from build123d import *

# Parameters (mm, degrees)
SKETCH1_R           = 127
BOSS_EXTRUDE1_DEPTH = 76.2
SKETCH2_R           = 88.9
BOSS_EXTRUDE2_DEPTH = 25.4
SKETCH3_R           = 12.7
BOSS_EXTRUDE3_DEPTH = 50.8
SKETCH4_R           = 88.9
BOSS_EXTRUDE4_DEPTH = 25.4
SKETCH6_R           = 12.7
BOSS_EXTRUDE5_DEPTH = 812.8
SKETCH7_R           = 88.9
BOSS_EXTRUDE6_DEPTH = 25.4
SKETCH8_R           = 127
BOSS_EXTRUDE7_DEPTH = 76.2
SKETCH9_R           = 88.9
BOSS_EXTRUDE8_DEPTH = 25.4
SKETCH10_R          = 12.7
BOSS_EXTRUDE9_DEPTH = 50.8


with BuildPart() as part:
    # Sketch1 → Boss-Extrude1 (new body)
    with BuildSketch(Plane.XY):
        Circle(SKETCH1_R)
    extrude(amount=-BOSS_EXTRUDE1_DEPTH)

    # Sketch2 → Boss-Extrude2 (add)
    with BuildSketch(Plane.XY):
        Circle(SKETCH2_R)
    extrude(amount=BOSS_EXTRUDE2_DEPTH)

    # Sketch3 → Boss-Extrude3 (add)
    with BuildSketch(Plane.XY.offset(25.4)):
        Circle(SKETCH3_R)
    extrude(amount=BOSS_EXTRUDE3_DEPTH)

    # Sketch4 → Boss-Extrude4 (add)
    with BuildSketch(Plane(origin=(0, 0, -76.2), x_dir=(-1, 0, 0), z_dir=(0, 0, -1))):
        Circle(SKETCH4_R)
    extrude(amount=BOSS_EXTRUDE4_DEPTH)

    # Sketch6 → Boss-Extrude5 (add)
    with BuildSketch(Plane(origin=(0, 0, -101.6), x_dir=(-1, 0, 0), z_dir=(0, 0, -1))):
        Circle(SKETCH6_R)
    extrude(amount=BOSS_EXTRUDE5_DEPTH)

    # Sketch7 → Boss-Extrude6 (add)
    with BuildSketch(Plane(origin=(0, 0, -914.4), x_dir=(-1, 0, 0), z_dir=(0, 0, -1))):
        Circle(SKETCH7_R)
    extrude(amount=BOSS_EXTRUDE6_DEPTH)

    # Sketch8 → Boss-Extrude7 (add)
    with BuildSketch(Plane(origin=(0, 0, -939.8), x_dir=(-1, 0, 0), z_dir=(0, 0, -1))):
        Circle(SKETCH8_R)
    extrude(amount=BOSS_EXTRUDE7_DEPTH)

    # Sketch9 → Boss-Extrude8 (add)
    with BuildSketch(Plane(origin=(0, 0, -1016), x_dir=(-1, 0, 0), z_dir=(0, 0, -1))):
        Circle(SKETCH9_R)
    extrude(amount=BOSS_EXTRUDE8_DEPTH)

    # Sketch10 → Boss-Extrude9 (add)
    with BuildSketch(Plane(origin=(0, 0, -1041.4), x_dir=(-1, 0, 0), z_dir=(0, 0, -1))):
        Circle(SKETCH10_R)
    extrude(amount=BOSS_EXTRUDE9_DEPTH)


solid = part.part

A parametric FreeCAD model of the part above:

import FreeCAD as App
import Part
import Sketcher
Q = App.Units.Quantity

doc = App.newDocument("Part")
params = doc.addObject("Spreadsheet::Sheet", "Params")
for row, (alias, value) in enumerate([
    ("sketch1_diameter", "10 in"),
    ("pad1_length", "3 in"),
    ("sketch2_diameter", "7 in"),
    ("pad2_length", "1 in"),
    ("sketch3_diameter", "1 in"),
    ("pad3_length", "2 in"),
    ("sketch4_diameter", "7 in"),
    ("pad4_length", "1 in"),
    ("sketch5_diameter", "1 in"),
    ("pad5_length", "32 in"),
    ("sketch6_diameter", "7 in"),
    ("pad6_length", "1 in"),
    ("sketch7_diameter", "10 in"),
    ("pad7_length", "3 in"),
    ("sketch8_diameter", "7 in"),
    ("pad8_length", "1 in"),
    ("sketch9_diameter", "1 in"),
    ("pad9_length", "2 in"),
], start=1):
    params.set(f"A{row}", alias)
    params.set(f"B{row}", "=" + value)
    params.setAlias(f"B{row}", alias)

body = doc.addObject("PartDesign::Body", "Body")

# Sketch on XY plane
sketch1 = body.newObject("Sketcher::SketchObject", "Sketch")
sketch1.AttachmentSupport = (doc.getObject("XY_Plane"), [""])
sketch1.MapMode = "FlatFace"
sketch1.addGeometry(Part.Circle(App.Vector(0, 0, 0), App.Vector(0, 0, 1), 127), False)
sketch1.addConstraint([
    Sketcher.Constraint("Coincident", 0, 3, -1, 1),
    Sketcher.Constraint("Diameter", 0, Q("10 in")),
])
sketch1.setExpression("Constraints[1]", "Params.sketch1_diameter")
pad1 = body.newObject("PartDesign::Pad", "Pad")
pad1.Profile = sketch1
pad1.setExpression("Length", "Params.pad1_length")
pad1.Reversed = True

# Sketch on XY plane
sketch2 = body.newObject("Sketcher::SketchObject", "Sketch001")
sketch2.AttachmentSupport = (doc.getObject("XY_Plane"), [""])
sketch2.MapMode = "FlatFace"
sketch2.addGeometry(Part.Circle(App.Vector(0, 0, 0), App.Vector(0, 0, 1), 88.9), False)
sketch2.addConstraint([
    Sketcher.Constraint("Coincident", 0, 3, -1, 1),
    Sketcher.Constraint("Diameter", 0, Q("7 in")),
])
sketch2.setExpression("Constraints[1]", "Params.sketch2_diameter")
pad2 = body.newObject("PartDesign::Pad", "Pad001")
pad2.Profile = sketch2
pad2.setExpression("Length", "Params.pad2_length")

# Sketch on XY plane
sketch3 = body.newObject("Sketcher::SketchObject", "Sketch002")
sketch3.AttachmentSupport = (doc.getObject("XY_Plane"), [""])
sketch3.MapMode = "FlatFace"
sketch3.AttachmentOffset = App.Placement(App.Vector(0, 0, 1 * 25.4), App.Rotation())
sketch3.addGeometry(Part.Circle(App.Vector(0, 0, 0), App.Vector(0, 0, 1), 12.7), False)
sketch3.addConstraint([
    Sketcher.Constraint("Coincident", 0, 3, -1, 1),
    Sketcher.Constraint("Diameter", 0, Q("1 in")),
])
sketch3.setExpression("Constraints[1]", "Params.sketch3_diameter")
pad3 = body.newObject("PartDesign::Pad", "Pad002")
pad3.Profile = sketch3
pad3.setExpression("Length", "Params.pad3_length")

# Sketch on XY plane
sketch4 = body.newObject("Sketcher::SketchObject", "Sketch003")
sketch4.AttachmentSupport = (doc.getObject("XY_Plane"), [""])
sketch4.MapMode = "FlatFace"
sketch4.AttachmentOffset = App.Placement(App.Vector(0, 0, -3 * 25.4), App.Rotation())
sketch4.addGeometry(Part.Circle(App.Vector(0, 0, 0), App.Vector(0, 0, 1), 88.9), False)
sketch4.addConstraint([
    Sketcher.Constraint("Coincident", 0, 3, -1, 1),
    Sketcher.Constraint("Diameter", 0, Q("7 in")),
])
sketch4.setExpression("Constraints[1]", "Params.sketch4_diameter")
pad4 = body.newObject("PartDesign::Pad", "Pad003")
pad4.Profile = sketch4
pad4.setExpression("Length", "Params.pad4_length")
pad4.Reversed = True

# Sketch on XY plane
sketch5 = body.newObject("Sketcher::SketchObject", "Sketch004")
sketch5.AttachmentSupport = (doc.getObject("XY_Plane"), [""])
sketch5.MapMode = "FlatFace"
sketch5.AttachmentOffset = App.Placement(App.Vector(0, 0, -4 * 25.4), App.Rotation())
sketch5.addGeometry(Part.Circle(App.Vector(0, 0, 0), App.Vector(0, 0, 1), 12.7), False)
sketch5.addConstraint([
    Sketcher.Constraint("Coincident", 0, 3, -1, 1),
    Sketcher.Constraint("Diameter", 0, Q("1 in")),
])
sketch5.setExpression("Constraints[1]", "Params.sketch5_diameter")
pad5 = body.newObject("PartDesign::Pad", "Pad004")
pad5.Profile = sketch5
pad5.setExpression("Length", "Params.pad5_length")
pad5.Reversed = True

# Sketch on XY plane
sketch6 = body.newObject("Sketcher::SketchObject", "Sketch005")
sketch6.AttachmentSupport = (doc.getObject("XY_Plane"), [""])
sketch6.MapMode = "FlatFace"
sketch6.AttachmentOffset = App.Placement(App.Vector(0, 0, -36 * 25.4), App.Rotation())
sketch6.addGeometry(Part.Circle(App.Vector(0, 0, 0), App.Vector(0, 0, 1), 88.9), False)
sketch6.addConstraint([
    Sketcher.Constraint("Coincident", 0, 3, -1, 1),
    Sketcher.Constraint("Diameter", 0, Q("7 in")),
])
sketch6.setExpression("Constraints[1]", "Params.sketch6_diameter")
pad6 = body.newObject("PartDesign::Pad", "Pad005")
pad6.Profile = sketch6
pad6.setExpression("Length", "Params.pad6_length")
pad6.Reversed = True

# Sketch on XY plane
sketch7 = body.newObject("Sketcher::SketchObject", "Sketch006")
sketch7.AttachmentSupport = (doc.getObject("XY_Plane"), [""])
sketch7.MapMode = "FlatFace"
sketch7.AttachmentOffset = App.Placement(App.Vector(0, 0, -37 * 25.4), App.Rotation())
sketch7.addGeometry(Part.Circle(App.Vector(0, 0, 0), App.Vector(0, 0, 1), 127), False)
sketch7.addConstraint([
    Sketcher.Constraint("Coincident", 0, 3, -1, 1),
    Sketcher.Constraint("Diameter", 0, Q("10 in")),
])
sketch7.setExpression("Constraints[1]", "Params.sketch7_diameter")
pad7 = body.newObject("PartDesign::Pad", "Pad006")
pad7.Profile = sketch7
pad7.setExpression("Length", "Params.pad7_length")
pad7.Reversed = True

# Sketch on XY plane
sketch8 = body.newObject("Sketcher::SketchObject", "Sketch007")
sketch8.AttachmentSupport = (doc.getObject("XY_Plane"), [""])
sketch8.MapMode = "FlatFace"
sketch8.AttachmentOffset = App.Placement(App.Vector(0, 0, -40 * 25.4), App.Rotation())
sketch8.addGeometry(Part.Circle(App.Vector(0, 0, 0), App.Vector(0, 0, 1), 88.9), False)
sketch8.addConstraint([
    Sketcher.Constraint("Coincident", 0, 3, -1, 1),
    Sketcher.Constraint("Diameter", 0, Q("7 in")),
])
sketch8.setExpression("Constraints[1]", "Params.sketch8_diameter")
pad8 = body.newObject("PartDesign::Pad", "Pad007")
pad8.Profile = sketch8
pad8.setExpression("Length", "Params.pad8_length")
pad8.Reversed = True

# Sketch on XY plane
sketch9 = body.newObject("Sketcher::SketchObject", "Sketch008")
sketch9.AttachmentSupport = (doc.getObject("XY_Plane"), [""])
sketch9.MapMode = "FlatFace"
sketch9.AttachmentOffset = App.Placement(App.Vector(0, 0, -41 * 25.4), App.Rotation())
sketch9.addGeometry(Part.Circle(App.Vector(0, 0, 0), App.Vector(0, 0, 1), 12.7), False)
sketch9.addConstraint([
    Sketcher.Constraint("Coincident", 0, 3, -1, 1),
    Sketcher.Constraint("Diameter", 0, Q("1 in")),
])
sketch9.setExpression("Constraints[1]", "Params.sketch9_diameter")
pad9 = body.newObject("PartDesign::Pad", "Pad008")
pad9.Profile = sketch9
pad9.setExpression("Length", "Params.pad9_length")
pad9.Reversed = True

doc.recompute()
